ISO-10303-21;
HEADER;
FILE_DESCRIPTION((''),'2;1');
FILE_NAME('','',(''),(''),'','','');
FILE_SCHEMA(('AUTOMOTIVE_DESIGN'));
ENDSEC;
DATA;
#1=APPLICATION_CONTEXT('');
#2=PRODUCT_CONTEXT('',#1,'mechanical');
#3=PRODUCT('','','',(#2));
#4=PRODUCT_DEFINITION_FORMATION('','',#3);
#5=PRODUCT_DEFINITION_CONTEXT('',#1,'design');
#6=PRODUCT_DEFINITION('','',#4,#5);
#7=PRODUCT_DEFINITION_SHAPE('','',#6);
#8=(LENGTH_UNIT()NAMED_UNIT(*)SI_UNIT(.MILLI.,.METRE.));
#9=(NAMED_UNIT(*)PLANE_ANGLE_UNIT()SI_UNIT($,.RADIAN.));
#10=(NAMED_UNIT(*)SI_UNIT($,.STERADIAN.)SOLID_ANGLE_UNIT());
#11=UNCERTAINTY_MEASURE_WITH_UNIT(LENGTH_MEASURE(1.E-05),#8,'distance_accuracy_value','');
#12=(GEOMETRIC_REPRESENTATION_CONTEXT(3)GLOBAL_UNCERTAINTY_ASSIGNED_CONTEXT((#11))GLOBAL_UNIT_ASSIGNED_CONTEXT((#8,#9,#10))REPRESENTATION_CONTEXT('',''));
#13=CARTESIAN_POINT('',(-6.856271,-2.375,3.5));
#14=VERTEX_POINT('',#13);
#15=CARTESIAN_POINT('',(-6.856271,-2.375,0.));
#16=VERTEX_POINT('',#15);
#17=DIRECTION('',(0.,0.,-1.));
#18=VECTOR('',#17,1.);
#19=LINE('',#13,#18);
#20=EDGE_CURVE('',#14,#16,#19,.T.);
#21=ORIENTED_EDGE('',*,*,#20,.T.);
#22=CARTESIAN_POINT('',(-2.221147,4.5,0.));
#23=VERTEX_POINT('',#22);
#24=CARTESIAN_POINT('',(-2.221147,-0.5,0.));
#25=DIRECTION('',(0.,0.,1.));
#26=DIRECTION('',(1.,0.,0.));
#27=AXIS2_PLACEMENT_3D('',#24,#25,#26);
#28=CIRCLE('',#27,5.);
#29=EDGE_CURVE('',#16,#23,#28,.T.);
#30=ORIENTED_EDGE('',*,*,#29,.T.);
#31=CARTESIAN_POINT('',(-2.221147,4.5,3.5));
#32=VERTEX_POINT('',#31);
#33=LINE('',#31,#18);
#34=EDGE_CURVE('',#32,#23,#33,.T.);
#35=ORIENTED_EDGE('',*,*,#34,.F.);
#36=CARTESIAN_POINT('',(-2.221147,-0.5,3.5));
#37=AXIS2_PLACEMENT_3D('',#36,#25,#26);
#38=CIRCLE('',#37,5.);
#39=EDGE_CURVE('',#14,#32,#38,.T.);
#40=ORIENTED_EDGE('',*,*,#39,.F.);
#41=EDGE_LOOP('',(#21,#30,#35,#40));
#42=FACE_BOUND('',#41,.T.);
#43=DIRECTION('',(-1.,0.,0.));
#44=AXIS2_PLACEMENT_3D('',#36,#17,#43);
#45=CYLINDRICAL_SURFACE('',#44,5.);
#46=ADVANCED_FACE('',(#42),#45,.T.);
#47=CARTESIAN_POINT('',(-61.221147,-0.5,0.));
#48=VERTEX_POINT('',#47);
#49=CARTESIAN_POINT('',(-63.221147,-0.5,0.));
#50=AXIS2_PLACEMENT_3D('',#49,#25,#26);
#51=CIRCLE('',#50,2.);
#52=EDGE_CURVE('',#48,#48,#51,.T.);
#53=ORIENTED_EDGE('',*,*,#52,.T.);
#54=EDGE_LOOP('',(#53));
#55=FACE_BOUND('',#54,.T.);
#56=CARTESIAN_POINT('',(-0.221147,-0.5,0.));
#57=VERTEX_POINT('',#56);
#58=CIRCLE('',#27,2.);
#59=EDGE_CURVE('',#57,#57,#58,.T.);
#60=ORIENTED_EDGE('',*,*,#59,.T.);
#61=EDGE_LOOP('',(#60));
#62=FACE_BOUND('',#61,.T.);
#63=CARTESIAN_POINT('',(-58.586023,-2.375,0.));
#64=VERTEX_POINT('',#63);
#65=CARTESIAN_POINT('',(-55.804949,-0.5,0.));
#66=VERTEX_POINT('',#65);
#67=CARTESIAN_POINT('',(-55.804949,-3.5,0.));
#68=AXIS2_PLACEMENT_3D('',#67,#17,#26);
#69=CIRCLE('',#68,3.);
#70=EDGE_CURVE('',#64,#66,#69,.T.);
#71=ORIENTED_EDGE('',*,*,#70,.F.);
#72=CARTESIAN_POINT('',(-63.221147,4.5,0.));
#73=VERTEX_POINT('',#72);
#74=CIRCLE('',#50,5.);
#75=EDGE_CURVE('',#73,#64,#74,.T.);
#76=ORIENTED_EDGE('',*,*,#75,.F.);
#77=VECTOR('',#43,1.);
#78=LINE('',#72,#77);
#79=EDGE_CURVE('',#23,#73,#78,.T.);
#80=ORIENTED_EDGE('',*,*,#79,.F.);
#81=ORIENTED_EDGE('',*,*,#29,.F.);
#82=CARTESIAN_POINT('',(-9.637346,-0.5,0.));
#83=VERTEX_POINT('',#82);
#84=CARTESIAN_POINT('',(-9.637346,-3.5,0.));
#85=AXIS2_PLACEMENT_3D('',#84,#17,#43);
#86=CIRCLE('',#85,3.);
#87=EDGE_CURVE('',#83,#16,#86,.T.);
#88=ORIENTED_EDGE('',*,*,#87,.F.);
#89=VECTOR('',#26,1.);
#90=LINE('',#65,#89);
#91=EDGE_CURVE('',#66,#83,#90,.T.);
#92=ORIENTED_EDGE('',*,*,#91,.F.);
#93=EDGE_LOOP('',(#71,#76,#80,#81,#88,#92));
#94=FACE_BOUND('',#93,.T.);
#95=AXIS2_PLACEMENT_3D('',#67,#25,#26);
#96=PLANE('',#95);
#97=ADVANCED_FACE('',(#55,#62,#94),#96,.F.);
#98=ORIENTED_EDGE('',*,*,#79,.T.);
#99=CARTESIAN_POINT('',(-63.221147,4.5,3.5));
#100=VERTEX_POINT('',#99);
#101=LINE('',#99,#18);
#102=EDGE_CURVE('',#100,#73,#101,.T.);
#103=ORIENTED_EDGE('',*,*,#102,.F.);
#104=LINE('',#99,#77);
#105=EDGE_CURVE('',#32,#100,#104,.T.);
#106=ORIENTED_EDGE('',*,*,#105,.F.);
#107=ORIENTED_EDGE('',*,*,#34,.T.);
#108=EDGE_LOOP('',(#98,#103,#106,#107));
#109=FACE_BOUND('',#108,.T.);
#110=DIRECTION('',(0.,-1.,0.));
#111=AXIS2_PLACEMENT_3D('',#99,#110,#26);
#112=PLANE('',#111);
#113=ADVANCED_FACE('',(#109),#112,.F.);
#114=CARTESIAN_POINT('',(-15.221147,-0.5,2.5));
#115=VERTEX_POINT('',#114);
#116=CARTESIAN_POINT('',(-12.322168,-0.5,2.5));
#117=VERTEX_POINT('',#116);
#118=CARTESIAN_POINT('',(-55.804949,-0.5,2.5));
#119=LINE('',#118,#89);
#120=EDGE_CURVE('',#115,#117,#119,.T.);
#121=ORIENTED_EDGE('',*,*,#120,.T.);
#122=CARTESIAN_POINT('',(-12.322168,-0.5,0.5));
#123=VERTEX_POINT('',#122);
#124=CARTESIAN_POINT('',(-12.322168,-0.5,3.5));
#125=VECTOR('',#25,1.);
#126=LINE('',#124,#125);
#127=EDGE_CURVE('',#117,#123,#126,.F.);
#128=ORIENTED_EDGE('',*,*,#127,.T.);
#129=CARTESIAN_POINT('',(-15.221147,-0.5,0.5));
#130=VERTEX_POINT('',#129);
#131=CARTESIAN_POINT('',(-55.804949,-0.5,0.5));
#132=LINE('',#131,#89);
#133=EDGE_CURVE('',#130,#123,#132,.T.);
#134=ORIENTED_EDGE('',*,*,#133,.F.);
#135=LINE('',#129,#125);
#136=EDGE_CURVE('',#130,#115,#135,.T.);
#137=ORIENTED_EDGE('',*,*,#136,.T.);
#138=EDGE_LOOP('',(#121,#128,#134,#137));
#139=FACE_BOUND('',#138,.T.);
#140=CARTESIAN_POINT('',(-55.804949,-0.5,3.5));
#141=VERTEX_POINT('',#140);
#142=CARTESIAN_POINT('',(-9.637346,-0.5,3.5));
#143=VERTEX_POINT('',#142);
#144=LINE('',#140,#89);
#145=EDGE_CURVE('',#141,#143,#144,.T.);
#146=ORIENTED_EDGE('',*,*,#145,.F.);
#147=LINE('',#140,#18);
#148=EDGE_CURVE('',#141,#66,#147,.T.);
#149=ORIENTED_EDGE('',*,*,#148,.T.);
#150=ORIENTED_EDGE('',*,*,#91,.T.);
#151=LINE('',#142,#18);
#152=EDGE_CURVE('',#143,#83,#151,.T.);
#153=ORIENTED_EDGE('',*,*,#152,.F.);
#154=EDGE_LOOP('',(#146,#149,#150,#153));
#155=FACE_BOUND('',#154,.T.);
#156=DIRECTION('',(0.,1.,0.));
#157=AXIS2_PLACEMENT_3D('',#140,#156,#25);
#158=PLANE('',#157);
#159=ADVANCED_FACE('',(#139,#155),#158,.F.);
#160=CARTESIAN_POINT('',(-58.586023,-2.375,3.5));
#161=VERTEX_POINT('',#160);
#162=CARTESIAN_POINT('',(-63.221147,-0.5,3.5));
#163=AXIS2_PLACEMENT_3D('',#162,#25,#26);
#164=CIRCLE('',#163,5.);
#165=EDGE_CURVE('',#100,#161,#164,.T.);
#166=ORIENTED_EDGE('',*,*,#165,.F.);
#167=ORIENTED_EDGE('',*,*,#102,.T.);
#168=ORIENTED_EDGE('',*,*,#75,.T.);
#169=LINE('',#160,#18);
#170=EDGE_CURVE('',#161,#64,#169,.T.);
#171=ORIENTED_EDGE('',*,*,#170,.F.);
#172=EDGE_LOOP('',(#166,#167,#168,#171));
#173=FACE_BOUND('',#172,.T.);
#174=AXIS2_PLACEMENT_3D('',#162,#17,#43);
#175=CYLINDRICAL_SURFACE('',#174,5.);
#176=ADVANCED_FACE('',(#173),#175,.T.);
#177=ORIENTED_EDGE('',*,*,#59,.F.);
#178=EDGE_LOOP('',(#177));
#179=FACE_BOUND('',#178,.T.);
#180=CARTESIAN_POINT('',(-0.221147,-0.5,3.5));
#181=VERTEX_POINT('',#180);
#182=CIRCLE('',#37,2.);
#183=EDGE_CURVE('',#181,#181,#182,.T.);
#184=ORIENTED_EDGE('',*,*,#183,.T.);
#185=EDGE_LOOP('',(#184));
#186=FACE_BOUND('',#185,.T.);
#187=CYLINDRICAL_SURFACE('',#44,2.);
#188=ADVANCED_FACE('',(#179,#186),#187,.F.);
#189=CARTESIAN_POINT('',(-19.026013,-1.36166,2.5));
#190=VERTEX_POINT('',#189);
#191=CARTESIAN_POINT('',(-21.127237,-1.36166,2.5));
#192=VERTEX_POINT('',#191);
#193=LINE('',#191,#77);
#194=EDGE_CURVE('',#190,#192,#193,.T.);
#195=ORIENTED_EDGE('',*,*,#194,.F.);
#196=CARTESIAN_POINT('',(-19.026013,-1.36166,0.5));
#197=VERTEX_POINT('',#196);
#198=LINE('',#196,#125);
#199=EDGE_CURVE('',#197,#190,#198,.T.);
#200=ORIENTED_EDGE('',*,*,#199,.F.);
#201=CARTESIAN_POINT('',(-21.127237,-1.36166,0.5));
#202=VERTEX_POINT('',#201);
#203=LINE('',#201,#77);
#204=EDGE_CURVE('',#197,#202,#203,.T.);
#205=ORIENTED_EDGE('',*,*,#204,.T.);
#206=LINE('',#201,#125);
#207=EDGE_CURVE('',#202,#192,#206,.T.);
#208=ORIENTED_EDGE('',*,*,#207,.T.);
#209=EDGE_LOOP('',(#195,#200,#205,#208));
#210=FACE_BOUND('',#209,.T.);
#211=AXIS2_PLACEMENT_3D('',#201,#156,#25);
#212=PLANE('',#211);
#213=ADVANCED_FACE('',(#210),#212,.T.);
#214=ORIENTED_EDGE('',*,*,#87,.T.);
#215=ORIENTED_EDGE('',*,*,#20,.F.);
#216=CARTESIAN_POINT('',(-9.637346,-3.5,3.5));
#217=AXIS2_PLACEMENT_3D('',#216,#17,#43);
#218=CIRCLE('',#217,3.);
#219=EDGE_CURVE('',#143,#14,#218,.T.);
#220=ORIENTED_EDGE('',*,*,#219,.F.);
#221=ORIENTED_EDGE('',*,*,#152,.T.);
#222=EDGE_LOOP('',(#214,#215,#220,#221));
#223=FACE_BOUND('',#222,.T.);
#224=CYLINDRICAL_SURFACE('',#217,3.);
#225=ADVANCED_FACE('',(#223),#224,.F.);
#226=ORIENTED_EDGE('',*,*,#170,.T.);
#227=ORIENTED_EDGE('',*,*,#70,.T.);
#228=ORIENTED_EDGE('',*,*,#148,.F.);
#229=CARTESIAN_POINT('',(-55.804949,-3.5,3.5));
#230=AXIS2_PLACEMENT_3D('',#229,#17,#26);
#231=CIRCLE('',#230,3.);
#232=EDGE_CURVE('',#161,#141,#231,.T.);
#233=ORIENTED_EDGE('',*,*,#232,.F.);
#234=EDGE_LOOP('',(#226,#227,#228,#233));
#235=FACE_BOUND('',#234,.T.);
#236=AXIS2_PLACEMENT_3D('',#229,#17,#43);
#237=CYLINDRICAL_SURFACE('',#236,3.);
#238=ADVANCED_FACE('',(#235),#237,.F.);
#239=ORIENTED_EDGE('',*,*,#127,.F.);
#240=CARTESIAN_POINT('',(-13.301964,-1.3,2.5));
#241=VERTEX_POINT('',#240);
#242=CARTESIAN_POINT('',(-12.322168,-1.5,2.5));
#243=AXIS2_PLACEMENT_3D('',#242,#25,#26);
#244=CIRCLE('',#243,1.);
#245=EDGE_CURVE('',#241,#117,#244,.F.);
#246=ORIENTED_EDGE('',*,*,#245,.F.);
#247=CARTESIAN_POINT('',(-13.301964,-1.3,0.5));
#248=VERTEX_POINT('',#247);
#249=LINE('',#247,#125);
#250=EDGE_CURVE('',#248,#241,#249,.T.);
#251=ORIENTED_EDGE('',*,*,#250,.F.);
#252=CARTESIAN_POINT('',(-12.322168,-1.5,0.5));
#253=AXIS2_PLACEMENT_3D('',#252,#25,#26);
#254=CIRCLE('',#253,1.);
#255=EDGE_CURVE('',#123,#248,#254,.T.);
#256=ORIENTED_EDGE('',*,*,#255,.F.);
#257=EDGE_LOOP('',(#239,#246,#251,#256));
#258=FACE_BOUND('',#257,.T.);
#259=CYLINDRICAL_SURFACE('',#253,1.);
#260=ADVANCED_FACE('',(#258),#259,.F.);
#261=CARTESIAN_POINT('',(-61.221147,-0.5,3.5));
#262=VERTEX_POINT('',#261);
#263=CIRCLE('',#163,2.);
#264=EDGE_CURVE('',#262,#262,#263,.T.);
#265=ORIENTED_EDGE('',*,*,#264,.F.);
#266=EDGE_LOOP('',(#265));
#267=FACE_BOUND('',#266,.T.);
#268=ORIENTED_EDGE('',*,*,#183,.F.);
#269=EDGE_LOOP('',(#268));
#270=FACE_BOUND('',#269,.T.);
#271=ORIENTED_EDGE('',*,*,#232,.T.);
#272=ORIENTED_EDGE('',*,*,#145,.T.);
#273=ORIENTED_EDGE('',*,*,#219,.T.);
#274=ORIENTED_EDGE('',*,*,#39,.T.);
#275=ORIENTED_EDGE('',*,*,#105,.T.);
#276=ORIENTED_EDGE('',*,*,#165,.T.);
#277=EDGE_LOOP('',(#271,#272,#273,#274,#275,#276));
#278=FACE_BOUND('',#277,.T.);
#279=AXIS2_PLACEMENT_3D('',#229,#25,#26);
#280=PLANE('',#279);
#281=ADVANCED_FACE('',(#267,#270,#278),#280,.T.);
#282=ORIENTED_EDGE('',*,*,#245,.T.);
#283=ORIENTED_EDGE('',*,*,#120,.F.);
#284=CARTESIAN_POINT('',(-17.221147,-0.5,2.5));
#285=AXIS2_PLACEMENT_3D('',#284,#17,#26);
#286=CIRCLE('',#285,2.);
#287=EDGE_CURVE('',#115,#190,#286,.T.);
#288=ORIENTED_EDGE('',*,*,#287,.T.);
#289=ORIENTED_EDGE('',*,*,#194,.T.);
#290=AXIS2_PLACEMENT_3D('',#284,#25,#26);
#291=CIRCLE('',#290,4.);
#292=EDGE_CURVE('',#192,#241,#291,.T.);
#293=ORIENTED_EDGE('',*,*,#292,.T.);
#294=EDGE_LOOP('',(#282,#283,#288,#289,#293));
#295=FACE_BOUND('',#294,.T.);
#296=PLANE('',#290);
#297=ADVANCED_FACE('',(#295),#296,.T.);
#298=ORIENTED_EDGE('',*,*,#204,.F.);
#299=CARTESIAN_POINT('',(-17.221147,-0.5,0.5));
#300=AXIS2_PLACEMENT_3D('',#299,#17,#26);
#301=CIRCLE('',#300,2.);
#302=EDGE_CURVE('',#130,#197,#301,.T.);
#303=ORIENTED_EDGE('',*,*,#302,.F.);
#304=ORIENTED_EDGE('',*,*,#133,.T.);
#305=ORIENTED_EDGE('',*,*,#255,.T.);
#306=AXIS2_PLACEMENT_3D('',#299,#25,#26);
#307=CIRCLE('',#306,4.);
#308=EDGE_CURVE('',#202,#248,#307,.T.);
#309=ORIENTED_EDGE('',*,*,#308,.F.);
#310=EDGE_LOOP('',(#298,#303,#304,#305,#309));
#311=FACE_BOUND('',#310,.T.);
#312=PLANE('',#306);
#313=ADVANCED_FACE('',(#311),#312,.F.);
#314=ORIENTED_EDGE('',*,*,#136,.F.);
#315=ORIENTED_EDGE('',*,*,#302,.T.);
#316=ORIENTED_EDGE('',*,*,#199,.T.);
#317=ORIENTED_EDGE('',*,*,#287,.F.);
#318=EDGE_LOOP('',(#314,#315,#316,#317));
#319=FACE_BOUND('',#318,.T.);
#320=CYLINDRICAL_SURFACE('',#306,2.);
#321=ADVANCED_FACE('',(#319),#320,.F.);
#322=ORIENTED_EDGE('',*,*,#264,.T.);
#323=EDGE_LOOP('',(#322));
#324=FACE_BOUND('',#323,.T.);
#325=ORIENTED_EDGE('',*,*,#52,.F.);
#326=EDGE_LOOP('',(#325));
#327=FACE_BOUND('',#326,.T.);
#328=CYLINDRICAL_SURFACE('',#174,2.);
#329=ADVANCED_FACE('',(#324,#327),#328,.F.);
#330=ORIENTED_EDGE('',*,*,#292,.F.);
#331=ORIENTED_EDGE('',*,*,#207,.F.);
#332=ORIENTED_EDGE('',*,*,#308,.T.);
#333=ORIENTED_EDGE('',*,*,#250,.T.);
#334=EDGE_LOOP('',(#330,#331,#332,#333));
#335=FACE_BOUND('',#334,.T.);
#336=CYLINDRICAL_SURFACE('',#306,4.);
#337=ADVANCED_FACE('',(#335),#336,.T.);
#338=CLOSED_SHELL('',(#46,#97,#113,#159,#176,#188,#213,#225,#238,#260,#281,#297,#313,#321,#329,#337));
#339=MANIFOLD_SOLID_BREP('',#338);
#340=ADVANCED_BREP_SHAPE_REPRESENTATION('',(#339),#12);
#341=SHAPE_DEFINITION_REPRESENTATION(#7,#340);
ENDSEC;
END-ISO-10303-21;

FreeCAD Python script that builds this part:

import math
import FreeCAD as App
import Part
import Sketcher
from FreeCAD import Vector
Q = App.Units.Quantity


def edges_at(feature, points):
    """Names of the edges that pass closest to the given points."""
    edges = feature.Shape.Edges
    near = lambda p: min(range(len(edges)), key=lambda i: edges[i].distToShape(Part.Vertex(*p))[0])
    return sorted({f"Edge{near(p) + 1}" for p in points})

doc = App.newDocument("Part")
body = doc.addObject("PartDesign::Body", "Body")

# Sketch on XY plane
sketch1 = body.newObject("Sketcher::SketchObject", "Sketch")
sketch1.AttachmentSupport = (doc.getObject("XY_Plane"), [""])
sketch1.MapMode = "FlatFace"
sketch1.addGeometry([
    Part.LineSegment(Vector(-2.2, 4.5, 0), Vector(-63.2, 4.5, 0)),  # 0
    Part.ArcOfCircle(Part.Circle(Vector(-63.2, -0.5, 0), Vector(0, 0, 1), 5), math.radians(90), math.radians(338)),  # 1
    Part.ArcOfCircle(Part.Circle(Vector(-55.8, -3.5, 0), Vector(0, 0, 1), 3), math.radians(90), math.radians(158)),  # 2
    Part.LineSegment(Vector(-55.8, -0.5, 0), Vector(-9.6, -0.5, 0)),  # 3
    Part.ArcOfCircle(Part.Circle(Vector(-9.6, -3.5, 0), Vector(0, 0, 1), 3), math.radians(22), math.radians(90)),  # 4
    Part.ArcOfCircle(Part.Circle(Vector(-2.2, -0.5, 0), Vector(0, 0, 1), 5), math.radians(-158), math.radians(90)),  # 5
    Part.Circle(Vector(-2.2, -0.5, 0), Vector(0, 0, 1), 2),  # 6
    Part.Circle(Vector(-63.2, -0.5, 0), Vector(0, 0, 1), 2),  # 7
], False)
sketch1.addConstraint([
    Sketcher.Constraint("Tangent", 0, 2, 1, 1),
    Sketcher.Constraint("Tangent", 1, 2, 2, 2),
    Sketcher.Constraint("Tangent", 2, 1, 3, 1),
    Sketcher.Constraint("Tangent", 3, 2, 4, 2),
    Sketcher.Constraint("Tangent", 4, 1, 5, 1),
    Sketcher.Constraint("Tangent", 5, 2, 0, 1),
    Sketcher.Constraint("Horizontal", 0),
    Sketcher.Constraint("Horizontal", 3),
    Sketcher.Constraint("Coincident", 6, 3, 5, 3),
    Sketcher.Constraint("Coincident", 7, 3, 1, 3),
    Sketcher.Constraint("Equal", 2, 4),
    Sketcher.Constraint("Equal", 1, 5),
    Sketcher.Constraint("Equal", 6, 7),
    Sketcher.Constraint("Horizontal", 7, 3, 2, 1),
    Sketcher.Constraint("Diameter", 6, Q("4 mm")),
    Sketcher.Constraint("Radius", 1, Q("5 mm")),
    Sketcher.Constraint("Radius", 2, Q("3 mm")),
    Sketcher.Constraint("DistanceX", 0, 2, 0, 1, Q("61 mm")),
    Sketcher.Constraint("DistanceY", 1, 3, -1, 1, Q("0.5 mm")),
    Sketcher.Constraint("DistanceX", 2, 3, -1, 1, Q("55.804949 mm")),
])
pad1 = body.newObject("PartDesign::Pad", "Pad")
pad1.Profile = sketch1
pad1.Length = 3.5

# Sketch on XY plane
sketch2 = body.newObject("Sketcher::SketchObject", "Sketch001")
sketch2.AttachmentSupport = (doc.getObject("XY_Plane"), [""])
sketch2.MapMode = "FlatFace"
sketch2.AttachmentOffset = App.Placement(Vector(0, 0, 2.5), App.Rotation())
sketch2.addGeometry([
    Part.LineSegment(Vector(-19, -1.4, 0), Vector(-21.1, -1.4, 0)),
    Part.ArcOfCircle(Part.Circle(Vector(-17.2, -0.5, 0), Vector(0, 0, 1), 4), math.radians(-168), math.radians(180)),
    Part.LineSegment(Vector(-21.2, -0.5, 0), Vector(-19.2, -0.5, 0)),
    Part.ArcOfCircle(Part.Circle(Vector(-17.2, -0.5, 0), Vector(0, 0, 1), 2), math.radians(-154), math.radians(180)),
], False)
sketch2.addConstraint([
    Sketcher.Constraint("Coincident", 0, 2, 1, 1),
    Sketcher.Constraint("Coincident", 1, 2, 2, 1),
    Sketcher.Constraint("Coincident", 2, 2, 3, 2),
    Sketcher.Constraint("Coincident", 3, 1, 0, 1),
    Sketcher.Constraint("Horizontal", 0),
    Sketcher.Constraint("Horizontal", 2),
    Sketcher.Constraint("Coincident", 3, 3, 1, 3),
    Sketcher.Constraint("Horizontal", 3, 3, 1, 2),
    Sketcher.Constraint("Radius", 1, Q("4 mm")),
    Sketcher.Constraint("Radius", 3, Q("2 mm")),
    Sketcher.Constraint("DistanceY", 1, 3, -1, 1, Q("0.5 mm")),
    Sketcher.Constraint("DistanceX", 0, 2, 0, 1, Q("2.101224 mm")),
    Sketcher.Constraint("DistanceX", 1, 3, -1, 1, Q("17.221147 mm")),
])
pad2 = body.newObject("PartDesign::Pad", "Pad001")
pad2.Profile = sketch2
pad2.Length = 2
pad2.Reversed = True
doc.recompute()

fillet = body.newObject("PartDesign::Fillet", "Fillet")
fillet.Base = (pad2, edges_at(pad2, [(-13.221, -0.5, 1.5)]))
fillet.Radius = 1

doc.recompute()
